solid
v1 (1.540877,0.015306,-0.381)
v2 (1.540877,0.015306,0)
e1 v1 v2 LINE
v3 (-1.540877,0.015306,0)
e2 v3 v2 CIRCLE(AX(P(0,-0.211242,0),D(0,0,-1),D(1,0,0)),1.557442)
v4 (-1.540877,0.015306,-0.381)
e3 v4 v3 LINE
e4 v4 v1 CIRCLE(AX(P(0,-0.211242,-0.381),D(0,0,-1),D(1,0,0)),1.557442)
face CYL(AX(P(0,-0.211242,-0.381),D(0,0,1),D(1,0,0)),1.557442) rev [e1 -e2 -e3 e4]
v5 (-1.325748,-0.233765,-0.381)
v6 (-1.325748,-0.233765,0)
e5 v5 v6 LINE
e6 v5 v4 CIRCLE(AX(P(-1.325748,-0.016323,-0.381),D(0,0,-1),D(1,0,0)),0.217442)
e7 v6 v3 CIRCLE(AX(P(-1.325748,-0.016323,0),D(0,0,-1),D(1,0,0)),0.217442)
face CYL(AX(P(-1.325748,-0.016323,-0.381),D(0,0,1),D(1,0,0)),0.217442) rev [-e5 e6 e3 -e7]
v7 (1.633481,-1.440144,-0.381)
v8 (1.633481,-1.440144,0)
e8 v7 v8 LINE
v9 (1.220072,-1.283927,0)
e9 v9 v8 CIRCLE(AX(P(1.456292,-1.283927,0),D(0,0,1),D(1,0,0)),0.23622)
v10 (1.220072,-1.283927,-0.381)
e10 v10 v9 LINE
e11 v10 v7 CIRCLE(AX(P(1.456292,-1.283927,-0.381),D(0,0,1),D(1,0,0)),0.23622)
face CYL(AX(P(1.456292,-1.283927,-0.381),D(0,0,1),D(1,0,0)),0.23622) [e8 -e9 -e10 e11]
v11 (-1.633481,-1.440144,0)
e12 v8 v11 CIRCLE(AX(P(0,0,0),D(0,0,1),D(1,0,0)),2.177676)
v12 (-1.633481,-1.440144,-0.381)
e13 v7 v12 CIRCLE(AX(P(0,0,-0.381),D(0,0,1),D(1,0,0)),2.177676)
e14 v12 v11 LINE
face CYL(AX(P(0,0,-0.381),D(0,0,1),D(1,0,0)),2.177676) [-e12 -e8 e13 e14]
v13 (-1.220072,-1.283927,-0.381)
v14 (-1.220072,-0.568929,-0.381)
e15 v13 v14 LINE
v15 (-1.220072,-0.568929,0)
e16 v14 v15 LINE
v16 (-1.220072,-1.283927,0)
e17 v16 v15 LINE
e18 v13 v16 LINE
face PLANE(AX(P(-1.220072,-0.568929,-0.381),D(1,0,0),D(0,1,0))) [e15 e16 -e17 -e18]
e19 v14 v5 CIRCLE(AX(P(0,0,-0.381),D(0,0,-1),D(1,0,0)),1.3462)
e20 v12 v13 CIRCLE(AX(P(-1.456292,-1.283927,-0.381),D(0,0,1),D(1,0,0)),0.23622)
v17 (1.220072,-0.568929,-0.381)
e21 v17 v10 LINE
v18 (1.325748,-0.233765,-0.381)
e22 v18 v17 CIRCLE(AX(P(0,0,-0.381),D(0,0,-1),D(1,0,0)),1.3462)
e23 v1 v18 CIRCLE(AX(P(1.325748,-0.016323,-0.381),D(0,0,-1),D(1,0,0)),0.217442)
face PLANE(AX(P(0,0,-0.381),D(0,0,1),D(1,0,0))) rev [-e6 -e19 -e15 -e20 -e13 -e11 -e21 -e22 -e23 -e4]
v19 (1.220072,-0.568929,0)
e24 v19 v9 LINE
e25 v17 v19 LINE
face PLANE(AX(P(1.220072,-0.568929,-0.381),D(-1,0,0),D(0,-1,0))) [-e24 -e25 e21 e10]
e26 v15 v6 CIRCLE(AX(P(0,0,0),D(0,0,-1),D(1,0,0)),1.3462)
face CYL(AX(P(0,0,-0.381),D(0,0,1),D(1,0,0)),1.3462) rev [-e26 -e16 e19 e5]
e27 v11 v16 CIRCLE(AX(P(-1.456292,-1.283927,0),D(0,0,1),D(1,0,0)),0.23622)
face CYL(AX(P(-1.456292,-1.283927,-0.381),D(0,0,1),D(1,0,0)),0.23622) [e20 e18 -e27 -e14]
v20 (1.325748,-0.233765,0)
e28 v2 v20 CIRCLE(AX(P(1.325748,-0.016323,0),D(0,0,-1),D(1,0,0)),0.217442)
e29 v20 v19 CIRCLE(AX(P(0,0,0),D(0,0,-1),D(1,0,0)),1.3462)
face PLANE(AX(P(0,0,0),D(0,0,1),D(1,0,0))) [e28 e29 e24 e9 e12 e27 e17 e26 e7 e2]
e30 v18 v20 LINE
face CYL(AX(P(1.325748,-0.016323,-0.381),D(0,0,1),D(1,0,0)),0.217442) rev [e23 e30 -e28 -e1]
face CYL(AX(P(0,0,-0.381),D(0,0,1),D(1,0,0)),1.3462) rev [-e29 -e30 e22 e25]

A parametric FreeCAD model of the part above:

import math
import FreeCAD as App
import Part
import Sketcher

V = App.Vector
Q = App.Units.Quantity

doc = App.newDocument("Part")
params = doc.addObject("Spreadsheet::Sheet", "Params")
for row, (alias, value) in enumerate([
    ("sketch1_radius", "0.053 in"),
    ("pad1_length", "0.015 in"),
], start=1):
    params.set(f"A{row}", alias)
    params.set(f"B{row}", "=" + value)
    params.setAlias(f"B{row}", alias)

body = doc.addObject("PartDesign::Body", "Body")

sketch1 = body.newObject("Sketcher::SketchObject", "Sketch")
sketch1.AttachmentSupport = (doc.getObject("XY_Plane"), [""])
sketch1.MapMode = "FlatFace"
sketch1.addGeometry([
    Part.LineSegment(V(1.22, -0.57, 0), V(1.22, -1.28, 0)),
    Part.ArcOfCircle(Part.Circle(V(1.46, -1.28, 0), V(0, 0, 1), 0.24), math.radians(180), math.radians(319)),
    Part.ArcOfCircle(Part.Circle(V(0, 0, 0), V(0, 0, 1), 2.18), math.radians(-41), math.radians(221)),
    Part.ArcOfCircle(Part.Circle(V(-1.46, -1.28, 0), V(0, 0, 1), 0.24), math.radians(-139), math.radians(0)),
    Part.LineSegment(V(-1.22, -1.28, 0), V(-1.22, -0.57, 0)),
    Part.ArcOfCircle(Part.Circle(V(0, 0, 0), V(0, 0, 1), 1.35), math.radians(-170), math.radians(-155)),
    Part.ArcOfCircle(Part.Circle(V(-1.33, -0.02, 0), V(0, 0, 1), 0.22), math.radians(172), math.radians(270)),
    Part.ArcOfCircle(Part.Circle(V(0, -0.21, 0), V(0, 0, 1), 1.56), math.radians(8), math.radians(172)),
    Part.ArcOfCircle(Part.Circle(V(1.33, -0.02, 0), V(0, 0, 1), 0.22), math.radians(-90), math.radians(8)),
    Part.ArcOfCircle(Part.Circle(V(0, 0, 0), V(0, 0, 1), 1.35), math.radians(-25), math.radians(-10)),
], False)
sketch1.addConstraint([
    Sketcher.Constraint("Tangent", 0, 2, 1, 1),
    Sketcher.Constraint("Tangent", 1, 2, 2, 1),
    Sketcher.Constraint("Tangent", 2, 2, 3, 1),
    Sketcher.Constraint("Tangent", 3, 2, 4, 1),
    Sketcher.Constraint("Coincident", 4, 2, 5, 2),
    Sketcher.Constraint("Coincident", 5, 1, 6, 2),
    Sketcher.Constraint("Tangent", 6, 1, 7, 2),
    Sketcher.Constraint("Tangent", 7, 1, 8, 2),
    Sketcher.Constraint("Coincident", 8, 1, 9, 2),
    Sketcher.Constraint("Coincident", 9, 1, 0, 1),
    Sketcher.Constraint("Vertical", 0),
    Sketcher.Constraint("Vertical", 4),
    Sketcher.Constraint("Coincident", 2, 3, -1, 1),
    Sketcher.Constraint("Coincident", 5, 3, -1, 1),
    Sketcher.Constraint("Coincident", 9, 3, -1, 1),
    Sketcher.Constraint("Equal", 1, 3),
    Sketcher.Constraint("Equal", 6, 8),
    Sketcher.Constraint("Equal", 5, 9),
    Sketcher.Constraint("Symmetric", 6, 3, 8, 3, -2),
    Sketcher.Constraint("Horizontal", 1, 3, 3, 3),
    Sketcher.Constraint("Vertical", 6, 3, 5, 1),
    Sketcher.Constraint("Radius", 5, Q("0.053 in")),
    Sketcher.Constraint("Radius", 1, Q("0.0093 in")),
    Sketcher.Constraint("Radius", 6, 0.217442),
    Sketcher.Constraint("DistanceY", 0, 2, 0, 1, 0.714998),
    Sketcher.Constraint("Radius", 2, 2.177676),
    Sketcher.Constraint("Radius", 7, 1.557442),
    Sketcher.Constraint("DistanceY", 1, 2, 7, 3, 1.228902),
])
sketch1.setExpression("Constraints[21]", "Params.sketch1_radius")
pad1 = body.newObject("PartDesign::Pad", "Pad")
pad1.Profile = sketch1
pad1.setExpression("Length", "Params.pad1_length")
pad1.Reversed = True

doc.recompute()
